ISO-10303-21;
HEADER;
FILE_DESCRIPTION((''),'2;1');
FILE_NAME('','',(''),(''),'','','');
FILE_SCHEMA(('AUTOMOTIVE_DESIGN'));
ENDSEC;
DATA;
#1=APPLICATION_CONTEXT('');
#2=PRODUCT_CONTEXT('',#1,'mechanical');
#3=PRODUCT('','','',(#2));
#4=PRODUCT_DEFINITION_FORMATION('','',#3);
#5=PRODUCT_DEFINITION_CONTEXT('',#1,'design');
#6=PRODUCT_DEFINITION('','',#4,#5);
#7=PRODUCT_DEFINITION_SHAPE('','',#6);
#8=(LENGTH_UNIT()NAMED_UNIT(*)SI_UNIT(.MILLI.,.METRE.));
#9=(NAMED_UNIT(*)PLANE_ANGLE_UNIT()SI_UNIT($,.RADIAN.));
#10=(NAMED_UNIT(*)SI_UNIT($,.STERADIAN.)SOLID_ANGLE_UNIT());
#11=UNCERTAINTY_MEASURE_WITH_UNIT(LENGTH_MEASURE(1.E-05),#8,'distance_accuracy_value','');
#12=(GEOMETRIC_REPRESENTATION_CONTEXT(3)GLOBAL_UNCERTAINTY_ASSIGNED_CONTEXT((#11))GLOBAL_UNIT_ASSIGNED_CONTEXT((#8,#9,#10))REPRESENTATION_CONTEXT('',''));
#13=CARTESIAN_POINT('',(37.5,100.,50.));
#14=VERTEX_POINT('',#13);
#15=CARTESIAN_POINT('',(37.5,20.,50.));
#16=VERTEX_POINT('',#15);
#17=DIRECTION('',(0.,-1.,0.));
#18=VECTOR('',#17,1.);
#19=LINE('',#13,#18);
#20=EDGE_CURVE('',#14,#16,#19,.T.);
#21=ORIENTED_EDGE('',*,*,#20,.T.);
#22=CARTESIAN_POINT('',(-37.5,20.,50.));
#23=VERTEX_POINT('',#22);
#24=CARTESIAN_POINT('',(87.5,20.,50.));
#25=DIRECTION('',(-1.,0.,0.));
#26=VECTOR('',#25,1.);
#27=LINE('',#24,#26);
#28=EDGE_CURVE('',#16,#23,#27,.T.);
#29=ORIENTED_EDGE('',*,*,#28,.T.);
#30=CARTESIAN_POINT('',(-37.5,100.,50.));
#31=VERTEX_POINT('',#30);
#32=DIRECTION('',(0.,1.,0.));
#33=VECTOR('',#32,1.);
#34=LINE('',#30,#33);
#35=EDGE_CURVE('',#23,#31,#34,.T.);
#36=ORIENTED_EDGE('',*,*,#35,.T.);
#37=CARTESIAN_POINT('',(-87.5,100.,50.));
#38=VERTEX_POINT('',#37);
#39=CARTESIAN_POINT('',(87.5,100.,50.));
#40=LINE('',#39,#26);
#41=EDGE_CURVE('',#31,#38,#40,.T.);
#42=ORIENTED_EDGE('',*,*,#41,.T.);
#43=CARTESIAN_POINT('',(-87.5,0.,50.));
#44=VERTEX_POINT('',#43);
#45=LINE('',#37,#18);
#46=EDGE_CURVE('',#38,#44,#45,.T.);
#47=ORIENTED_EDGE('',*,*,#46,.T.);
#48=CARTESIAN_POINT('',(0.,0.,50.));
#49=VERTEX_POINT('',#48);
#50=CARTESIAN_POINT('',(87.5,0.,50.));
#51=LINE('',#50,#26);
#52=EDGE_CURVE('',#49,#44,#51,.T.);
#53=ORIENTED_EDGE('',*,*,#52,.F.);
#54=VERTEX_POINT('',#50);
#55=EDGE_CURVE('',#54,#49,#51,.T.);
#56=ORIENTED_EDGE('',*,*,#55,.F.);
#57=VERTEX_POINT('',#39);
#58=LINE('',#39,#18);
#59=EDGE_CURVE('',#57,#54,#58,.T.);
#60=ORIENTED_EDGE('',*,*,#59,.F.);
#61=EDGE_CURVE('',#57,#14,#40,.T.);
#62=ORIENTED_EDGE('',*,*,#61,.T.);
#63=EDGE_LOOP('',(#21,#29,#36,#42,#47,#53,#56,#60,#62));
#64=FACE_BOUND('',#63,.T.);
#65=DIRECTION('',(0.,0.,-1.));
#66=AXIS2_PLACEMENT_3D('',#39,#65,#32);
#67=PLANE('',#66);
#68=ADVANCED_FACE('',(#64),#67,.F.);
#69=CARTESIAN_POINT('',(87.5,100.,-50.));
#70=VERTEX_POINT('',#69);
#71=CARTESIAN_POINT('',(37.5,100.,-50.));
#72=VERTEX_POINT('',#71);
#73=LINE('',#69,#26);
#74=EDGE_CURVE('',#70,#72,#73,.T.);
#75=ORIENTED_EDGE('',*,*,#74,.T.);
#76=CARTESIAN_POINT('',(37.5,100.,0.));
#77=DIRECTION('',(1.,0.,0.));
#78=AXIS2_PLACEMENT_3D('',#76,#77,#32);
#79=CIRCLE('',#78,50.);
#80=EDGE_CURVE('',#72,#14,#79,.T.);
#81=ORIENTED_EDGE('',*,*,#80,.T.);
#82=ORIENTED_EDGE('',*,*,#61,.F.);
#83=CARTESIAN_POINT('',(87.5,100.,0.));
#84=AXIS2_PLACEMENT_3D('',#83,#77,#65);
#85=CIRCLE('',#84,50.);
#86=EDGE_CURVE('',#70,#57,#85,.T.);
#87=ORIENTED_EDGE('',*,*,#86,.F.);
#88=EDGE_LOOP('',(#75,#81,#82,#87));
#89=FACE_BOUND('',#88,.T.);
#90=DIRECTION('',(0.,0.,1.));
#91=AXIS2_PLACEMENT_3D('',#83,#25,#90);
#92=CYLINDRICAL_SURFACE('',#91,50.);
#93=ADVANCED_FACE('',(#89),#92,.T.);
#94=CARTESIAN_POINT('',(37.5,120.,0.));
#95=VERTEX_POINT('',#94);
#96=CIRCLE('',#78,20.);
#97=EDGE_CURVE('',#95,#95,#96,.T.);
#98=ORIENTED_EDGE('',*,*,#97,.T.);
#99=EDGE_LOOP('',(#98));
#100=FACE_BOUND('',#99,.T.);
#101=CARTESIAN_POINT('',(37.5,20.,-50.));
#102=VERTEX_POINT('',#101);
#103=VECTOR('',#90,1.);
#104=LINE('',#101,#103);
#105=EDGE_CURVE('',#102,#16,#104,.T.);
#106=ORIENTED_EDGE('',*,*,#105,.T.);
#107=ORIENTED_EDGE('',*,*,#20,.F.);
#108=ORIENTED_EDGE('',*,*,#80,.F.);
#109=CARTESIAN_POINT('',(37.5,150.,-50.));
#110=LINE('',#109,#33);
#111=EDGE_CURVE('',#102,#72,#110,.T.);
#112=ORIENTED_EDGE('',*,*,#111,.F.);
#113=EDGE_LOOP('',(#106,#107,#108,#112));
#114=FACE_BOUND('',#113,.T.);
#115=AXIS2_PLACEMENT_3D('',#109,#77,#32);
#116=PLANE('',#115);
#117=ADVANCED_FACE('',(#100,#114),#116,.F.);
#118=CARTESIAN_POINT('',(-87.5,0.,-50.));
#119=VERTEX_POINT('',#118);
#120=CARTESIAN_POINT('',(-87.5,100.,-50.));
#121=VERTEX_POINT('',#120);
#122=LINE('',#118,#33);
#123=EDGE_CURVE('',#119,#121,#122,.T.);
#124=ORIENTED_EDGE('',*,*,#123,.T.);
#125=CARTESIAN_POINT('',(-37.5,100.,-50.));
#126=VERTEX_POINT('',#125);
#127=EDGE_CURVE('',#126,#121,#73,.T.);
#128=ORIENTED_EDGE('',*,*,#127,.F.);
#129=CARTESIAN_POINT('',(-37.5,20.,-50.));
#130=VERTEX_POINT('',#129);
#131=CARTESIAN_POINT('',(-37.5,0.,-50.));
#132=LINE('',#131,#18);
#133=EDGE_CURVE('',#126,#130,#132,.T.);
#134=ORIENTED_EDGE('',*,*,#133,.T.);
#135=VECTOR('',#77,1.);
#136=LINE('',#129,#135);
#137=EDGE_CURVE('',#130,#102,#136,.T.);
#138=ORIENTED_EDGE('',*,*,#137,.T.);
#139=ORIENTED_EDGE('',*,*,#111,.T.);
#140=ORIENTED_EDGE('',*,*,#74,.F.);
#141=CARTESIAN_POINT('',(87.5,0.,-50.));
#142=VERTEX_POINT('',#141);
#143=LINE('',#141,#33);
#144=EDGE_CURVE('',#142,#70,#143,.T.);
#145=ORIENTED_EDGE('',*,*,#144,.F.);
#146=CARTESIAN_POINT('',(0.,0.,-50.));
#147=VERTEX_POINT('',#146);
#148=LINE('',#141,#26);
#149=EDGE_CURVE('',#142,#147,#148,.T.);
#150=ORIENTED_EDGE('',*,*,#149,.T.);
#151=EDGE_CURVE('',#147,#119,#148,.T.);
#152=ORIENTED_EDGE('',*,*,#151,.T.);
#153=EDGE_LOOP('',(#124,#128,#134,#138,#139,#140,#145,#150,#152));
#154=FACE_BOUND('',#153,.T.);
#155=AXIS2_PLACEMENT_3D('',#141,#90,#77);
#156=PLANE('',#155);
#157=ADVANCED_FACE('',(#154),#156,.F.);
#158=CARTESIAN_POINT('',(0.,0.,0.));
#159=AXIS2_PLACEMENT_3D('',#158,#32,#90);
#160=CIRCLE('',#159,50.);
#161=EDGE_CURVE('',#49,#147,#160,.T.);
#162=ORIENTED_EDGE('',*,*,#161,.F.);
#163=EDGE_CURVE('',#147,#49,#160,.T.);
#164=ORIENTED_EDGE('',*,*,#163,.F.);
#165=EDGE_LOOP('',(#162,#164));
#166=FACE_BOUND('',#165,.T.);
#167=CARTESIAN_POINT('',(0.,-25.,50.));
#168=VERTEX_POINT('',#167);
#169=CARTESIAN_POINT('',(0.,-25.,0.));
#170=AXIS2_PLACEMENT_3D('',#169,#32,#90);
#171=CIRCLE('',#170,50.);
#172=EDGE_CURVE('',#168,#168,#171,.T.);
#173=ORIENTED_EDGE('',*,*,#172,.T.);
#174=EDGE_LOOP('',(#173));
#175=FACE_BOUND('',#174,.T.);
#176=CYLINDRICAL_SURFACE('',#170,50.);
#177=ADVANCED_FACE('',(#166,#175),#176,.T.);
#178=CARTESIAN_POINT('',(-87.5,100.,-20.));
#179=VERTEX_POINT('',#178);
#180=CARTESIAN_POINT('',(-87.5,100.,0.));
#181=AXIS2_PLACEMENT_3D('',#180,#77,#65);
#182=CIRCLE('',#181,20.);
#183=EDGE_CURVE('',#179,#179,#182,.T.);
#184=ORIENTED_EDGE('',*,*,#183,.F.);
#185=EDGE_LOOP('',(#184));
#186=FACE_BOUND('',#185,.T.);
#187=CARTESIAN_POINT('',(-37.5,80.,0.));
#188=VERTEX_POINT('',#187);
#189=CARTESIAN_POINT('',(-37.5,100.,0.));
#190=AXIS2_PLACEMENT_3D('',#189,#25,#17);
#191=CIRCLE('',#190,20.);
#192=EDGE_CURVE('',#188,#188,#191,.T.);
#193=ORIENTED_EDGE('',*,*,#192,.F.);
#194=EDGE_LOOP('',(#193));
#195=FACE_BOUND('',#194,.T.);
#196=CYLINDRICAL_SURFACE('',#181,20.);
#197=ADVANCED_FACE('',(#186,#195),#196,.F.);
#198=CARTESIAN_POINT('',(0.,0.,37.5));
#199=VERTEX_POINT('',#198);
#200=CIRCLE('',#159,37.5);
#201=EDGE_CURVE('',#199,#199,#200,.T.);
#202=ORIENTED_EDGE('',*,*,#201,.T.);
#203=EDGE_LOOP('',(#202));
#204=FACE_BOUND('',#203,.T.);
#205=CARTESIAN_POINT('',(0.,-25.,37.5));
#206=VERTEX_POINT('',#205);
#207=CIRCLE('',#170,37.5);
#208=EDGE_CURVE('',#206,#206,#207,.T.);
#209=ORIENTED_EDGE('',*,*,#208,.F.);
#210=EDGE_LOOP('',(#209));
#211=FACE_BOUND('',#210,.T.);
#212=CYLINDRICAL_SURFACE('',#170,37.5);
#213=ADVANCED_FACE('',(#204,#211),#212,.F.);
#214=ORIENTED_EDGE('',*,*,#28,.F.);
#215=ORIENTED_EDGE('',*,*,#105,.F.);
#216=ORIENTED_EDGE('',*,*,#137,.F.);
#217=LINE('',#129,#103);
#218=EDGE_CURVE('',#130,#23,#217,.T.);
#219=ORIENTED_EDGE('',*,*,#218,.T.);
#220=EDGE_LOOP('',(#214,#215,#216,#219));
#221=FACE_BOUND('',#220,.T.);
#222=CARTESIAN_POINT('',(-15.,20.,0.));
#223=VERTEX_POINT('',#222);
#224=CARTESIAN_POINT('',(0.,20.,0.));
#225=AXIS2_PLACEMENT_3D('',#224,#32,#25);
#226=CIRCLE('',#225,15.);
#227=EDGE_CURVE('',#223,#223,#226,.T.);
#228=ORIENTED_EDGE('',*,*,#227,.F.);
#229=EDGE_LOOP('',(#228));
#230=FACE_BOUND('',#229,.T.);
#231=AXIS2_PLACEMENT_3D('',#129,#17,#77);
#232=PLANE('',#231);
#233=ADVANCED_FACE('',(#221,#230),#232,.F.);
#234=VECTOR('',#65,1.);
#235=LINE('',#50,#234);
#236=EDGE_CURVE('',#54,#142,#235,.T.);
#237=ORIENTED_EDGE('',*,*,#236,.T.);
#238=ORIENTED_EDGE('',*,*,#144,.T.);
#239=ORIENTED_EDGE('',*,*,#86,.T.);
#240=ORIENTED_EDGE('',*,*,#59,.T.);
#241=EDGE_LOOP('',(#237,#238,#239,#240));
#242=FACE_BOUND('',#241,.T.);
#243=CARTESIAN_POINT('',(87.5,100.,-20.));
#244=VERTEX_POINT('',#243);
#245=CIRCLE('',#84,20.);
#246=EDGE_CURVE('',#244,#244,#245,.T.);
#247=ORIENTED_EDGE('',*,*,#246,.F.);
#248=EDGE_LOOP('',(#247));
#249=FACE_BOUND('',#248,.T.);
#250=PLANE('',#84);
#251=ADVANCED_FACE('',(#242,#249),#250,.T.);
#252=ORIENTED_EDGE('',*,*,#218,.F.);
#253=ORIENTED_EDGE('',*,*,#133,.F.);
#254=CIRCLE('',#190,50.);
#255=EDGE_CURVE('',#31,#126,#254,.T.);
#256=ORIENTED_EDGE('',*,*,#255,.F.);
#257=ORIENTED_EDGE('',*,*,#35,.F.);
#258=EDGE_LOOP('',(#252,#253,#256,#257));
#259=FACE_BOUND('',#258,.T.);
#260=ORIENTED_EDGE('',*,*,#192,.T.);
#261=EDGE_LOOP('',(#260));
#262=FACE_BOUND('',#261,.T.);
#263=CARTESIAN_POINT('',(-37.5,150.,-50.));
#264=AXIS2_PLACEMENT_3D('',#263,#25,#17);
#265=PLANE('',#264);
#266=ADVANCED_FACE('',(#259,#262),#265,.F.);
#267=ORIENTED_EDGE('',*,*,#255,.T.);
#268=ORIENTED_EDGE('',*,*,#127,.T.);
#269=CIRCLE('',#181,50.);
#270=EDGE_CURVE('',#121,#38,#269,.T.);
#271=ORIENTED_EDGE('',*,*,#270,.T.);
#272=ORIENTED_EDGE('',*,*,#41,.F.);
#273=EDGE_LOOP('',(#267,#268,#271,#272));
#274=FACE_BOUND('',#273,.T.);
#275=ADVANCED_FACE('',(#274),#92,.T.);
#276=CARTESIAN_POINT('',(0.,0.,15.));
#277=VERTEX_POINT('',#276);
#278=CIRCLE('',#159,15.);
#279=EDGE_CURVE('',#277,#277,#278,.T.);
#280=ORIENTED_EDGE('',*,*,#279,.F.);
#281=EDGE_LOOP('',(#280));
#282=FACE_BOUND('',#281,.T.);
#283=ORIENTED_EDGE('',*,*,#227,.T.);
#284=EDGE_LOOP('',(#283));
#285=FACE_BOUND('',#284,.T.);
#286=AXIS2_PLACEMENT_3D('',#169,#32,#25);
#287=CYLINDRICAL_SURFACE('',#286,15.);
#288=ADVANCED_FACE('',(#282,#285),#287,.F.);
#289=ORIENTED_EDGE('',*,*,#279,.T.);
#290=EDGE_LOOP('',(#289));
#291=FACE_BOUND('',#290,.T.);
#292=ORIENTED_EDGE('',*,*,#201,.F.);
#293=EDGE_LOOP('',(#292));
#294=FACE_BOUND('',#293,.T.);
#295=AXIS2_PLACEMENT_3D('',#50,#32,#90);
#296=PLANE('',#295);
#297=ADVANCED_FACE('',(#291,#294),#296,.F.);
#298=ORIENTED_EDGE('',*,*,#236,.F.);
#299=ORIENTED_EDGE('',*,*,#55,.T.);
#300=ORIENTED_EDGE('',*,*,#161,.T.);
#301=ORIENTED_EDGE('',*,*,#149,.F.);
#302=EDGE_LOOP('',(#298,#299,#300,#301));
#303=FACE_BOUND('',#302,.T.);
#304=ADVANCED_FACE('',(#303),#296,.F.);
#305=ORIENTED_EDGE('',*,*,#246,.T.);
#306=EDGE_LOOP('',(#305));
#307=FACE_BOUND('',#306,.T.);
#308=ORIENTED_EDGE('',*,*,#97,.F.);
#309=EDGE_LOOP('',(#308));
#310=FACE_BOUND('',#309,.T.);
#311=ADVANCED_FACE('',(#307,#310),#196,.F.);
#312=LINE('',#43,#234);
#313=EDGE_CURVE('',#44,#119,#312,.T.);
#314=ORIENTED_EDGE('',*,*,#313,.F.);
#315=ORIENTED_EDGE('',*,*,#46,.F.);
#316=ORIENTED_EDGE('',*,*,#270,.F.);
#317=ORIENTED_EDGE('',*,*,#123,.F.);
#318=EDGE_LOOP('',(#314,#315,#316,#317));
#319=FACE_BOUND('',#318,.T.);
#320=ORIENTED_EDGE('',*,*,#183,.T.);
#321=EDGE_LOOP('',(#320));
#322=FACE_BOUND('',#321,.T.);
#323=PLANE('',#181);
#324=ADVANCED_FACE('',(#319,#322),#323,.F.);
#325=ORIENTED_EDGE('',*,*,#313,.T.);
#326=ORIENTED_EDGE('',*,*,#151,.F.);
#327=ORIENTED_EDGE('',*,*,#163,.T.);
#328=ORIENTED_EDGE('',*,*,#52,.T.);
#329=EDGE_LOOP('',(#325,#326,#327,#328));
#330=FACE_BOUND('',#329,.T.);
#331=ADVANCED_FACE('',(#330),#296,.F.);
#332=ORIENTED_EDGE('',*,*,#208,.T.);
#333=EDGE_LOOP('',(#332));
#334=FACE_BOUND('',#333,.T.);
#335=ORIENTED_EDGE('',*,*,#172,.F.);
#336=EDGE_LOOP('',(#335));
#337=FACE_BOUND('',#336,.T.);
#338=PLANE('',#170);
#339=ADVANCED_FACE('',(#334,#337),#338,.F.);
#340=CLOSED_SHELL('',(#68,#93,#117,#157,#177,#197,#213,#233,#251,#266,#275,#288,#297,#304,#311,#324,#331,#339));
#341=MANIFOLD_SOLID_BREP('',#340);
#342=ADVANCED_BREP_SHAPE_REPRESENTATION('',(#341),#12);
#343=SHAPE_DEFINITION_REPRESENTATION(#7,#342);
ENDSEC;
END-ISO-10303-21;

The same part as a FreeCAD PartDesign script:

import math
import FreeCAD as App
import Part
import Sketcher

V = App.Vector

doc = App.newDocument("Part")
body = doc.addObject("PartDesign::Body", "Body")

# Sketch on XZ plane
sketch1 = doc.addObject("Sketcher::SketchObject", "Sketch")
body.addObject(sketch1)
sketch1.AttachmentSupport = (doc.XZ_Plane, [""])
sketch1.MapMode = "FlatFace"
sketch1.addGeometry([
    Part.Circle(V(0, 0, 0), V(0, 0, 1), 50),
    Part.Circle(V(0, 0, 0), V(0, 0, 1), 37.5),
], False)
sketch1.addConstraint([
    Sketcher.Constraint("Coincident", 0, 3, -1, 1),
    Sketcher.Constraint("Coincident", 1, 3, -1, 1),
    Sketcher.Constraint("Diameter", 0, 100.0),
    Sketcher.Constraint("Diameter", 1, 75.0),
])
pad1 = doc.addObject("PartDesign::Pad", "Pad")
body.addObject(pad1)
pad1.Profile = sketch1
pad1.Length = 25

# Sketch on YZ plane
sketch2 = doc.addObject("Sketcher::SketchObject", "Sketch001")
body.addObject(sketch2)
sketch2.AttachmentSupport = (doc.YZ_Plane, [""])
sketch2.MapMode = "FlatFace"
sketch2.addGeometry([
    Part.LineSegment(V(0, 50, 0), V(0, -50, 0)),
    Part.LineSegment(V(0, -50, 0), V(100, -50, 0)),
    Part.ArcOfCircle(Part.Circle(V(100, 0, 0), V(0, 0, 1), 50), math.radians(-90), math.radians(90)),
    Part.LineSegment(V(100, 50, 0), V(0, 50, 0)),
], False)
sketch2.addConstraint([
    Sketcher.Constraint("Coincident", 0, 2, 1, 1),
    Sketcher.Constraint("Tangent", 1, 2, 2, 1),
    Sketcher.Constraint("Tangent", 2, 2, 3, 1),
    Sketcher.Constraint("Coincident", 3, 2, 0, 1),
    Sketcher.Constraint("Vertical", 0),
    Sketcher.Constraint("Horizontal", 1),
    Sketcher.Constraint("Horizontal", 3),
    Sketcher.Constraint("Symmetric", 0, 2, 3, 2, -1, 1),
    Sketcher.Constraint("Equal", 3, 0),
    Sketcher.Constraint("Radius", 2, 50.0),
])
pad2 = doc.addObject("PartDesign::Pad", "Pad001")
body.addObject(pad2)
pad2.Profile = sketch2
pad2.Length = 175
pad2.Midplane = True

# Sketch on XY plane
sketch3 = doc.addObject("Sketcher::SketchObject", "Sketch002")
body.addObject(sketch3)
sketch3.AttachmentSupport = (doc.XY_Plane, [""])
sketch3.MapMode = "FlatFace"
sketch3.AttachmentOffset = App.Placement(V(0, 0, 50), App.Rotation())
sketch3.addGeometry([
    Part.LineSegment(V(-37.5, 150, 0), V(-37.5, 20, 0)),
    Part.LineSegment(V(-37.5, 20, 0), V(37.5, 20, 0)),
    Part.LineSegment(V(37.5, 20, 0), V(37.5, 150, 0)),
    Part.LineSegment(V(37.5, 150, 0), V(-37.5, 150, 0)),
], False)
sketch3.addConstraint([
    Sketcher.Constraint("Coincident", 0, 2, 1, 1),
    Sketcher.Constraint("Coincident", 1, 2, 2, 1),
    Sketcher.Constraint("Coincident", 2, 2, 3, 1),
    Sketcher.Constraint("Coincident", 3, 2, 0, 1),
    Sketcher.Constraint("Vertical", 0),
    Sketcher.Constraint("Horizontal", 1),
    Sketcher.Constraint("Vertical", 2),
    Sketcher.Constraint("Horizontal", 3),
    Sketcher.Constraint("DistanceX", 1, 1, 1, 2, 75.0),
    Sketcher.Constraint("DistanceY", 0, 2, 0, 1, 130.0),
    Sketcher.Constraint("DistanceY", -1, 1, 0, 2, 20.0),
    Sketcher.Constraint("DistanceX", 0, 2, -1, 1, 37.5),
])
pocket1 = doc.addObject("PartDesign::Pocket", "Pocket")
body.addObject(pocket1)
pocket1.Profile = sketch3
pocket1.Type = "ThroughAll"
pocket1.Midplane = True

# Sketch on XZ plane
sketch4 = doc.addObject("Sketcher::SketchObject", "Sketch003")
body.addObject(sketch4)
sketch4.AttachmentSupport = (doc.XZ_Plane, [""])
sketch4.MapMode = "FlatFace"
sketch4.AttachmentOffset = App.Placement(V(0, 0, -20), App.Rotation())
sketch4.addGeometry(Part.Circle(V(0, 0, 0), V(0, 0, 1), 15), False)
sketch4.addConstraint([
    Sketcher.Constraint("Coincident", 0, 3, -1, 1),
    Sketcher.Constraint("Diameter", 0, 30.0),
])
pocket2 = doc.addObject("PartDesign::Pocket", "Pocket001")
body.addObject(pocket2)
pocket2.Profile = sketch4
pocket2.Type = "ThroughAll"
pocket2.Reversed = True

# Sketch on YZ plane
sketch5 = doc.addObject("Sketcher::SketchObject", "Sketch004")
body.addObject(sketch5)
sketch5.AttachmentSupport = (doc.YZ_Plane, [""])
sketch5.MapMode = "FlatFace"
sketch5.AttachmentOffset = App.Placement(V(0, 0, 87.5), App.Rotation())
sketch5.addGeometry(Part.Circle(V(100, 0, 0), V(0, 0, 1), 20), False)
sketch5.addConstraint([
    Sketcher.Constraint("PointOnObject", 0, 3, -1),
    Sketcher.Constraint("Diameter", 0, 40.0),
    Sketcher.Constraint("DistanceX", -1, 1, 0, 3, 100.0),
])
pocket3 = doc.addObject("PartDesign::Pocket", "Pocket002")
body.addObject(pocket3)
pocket3.Profile = sketch5
pocket3.Type = "ThroughAll"

doc.recompute()
